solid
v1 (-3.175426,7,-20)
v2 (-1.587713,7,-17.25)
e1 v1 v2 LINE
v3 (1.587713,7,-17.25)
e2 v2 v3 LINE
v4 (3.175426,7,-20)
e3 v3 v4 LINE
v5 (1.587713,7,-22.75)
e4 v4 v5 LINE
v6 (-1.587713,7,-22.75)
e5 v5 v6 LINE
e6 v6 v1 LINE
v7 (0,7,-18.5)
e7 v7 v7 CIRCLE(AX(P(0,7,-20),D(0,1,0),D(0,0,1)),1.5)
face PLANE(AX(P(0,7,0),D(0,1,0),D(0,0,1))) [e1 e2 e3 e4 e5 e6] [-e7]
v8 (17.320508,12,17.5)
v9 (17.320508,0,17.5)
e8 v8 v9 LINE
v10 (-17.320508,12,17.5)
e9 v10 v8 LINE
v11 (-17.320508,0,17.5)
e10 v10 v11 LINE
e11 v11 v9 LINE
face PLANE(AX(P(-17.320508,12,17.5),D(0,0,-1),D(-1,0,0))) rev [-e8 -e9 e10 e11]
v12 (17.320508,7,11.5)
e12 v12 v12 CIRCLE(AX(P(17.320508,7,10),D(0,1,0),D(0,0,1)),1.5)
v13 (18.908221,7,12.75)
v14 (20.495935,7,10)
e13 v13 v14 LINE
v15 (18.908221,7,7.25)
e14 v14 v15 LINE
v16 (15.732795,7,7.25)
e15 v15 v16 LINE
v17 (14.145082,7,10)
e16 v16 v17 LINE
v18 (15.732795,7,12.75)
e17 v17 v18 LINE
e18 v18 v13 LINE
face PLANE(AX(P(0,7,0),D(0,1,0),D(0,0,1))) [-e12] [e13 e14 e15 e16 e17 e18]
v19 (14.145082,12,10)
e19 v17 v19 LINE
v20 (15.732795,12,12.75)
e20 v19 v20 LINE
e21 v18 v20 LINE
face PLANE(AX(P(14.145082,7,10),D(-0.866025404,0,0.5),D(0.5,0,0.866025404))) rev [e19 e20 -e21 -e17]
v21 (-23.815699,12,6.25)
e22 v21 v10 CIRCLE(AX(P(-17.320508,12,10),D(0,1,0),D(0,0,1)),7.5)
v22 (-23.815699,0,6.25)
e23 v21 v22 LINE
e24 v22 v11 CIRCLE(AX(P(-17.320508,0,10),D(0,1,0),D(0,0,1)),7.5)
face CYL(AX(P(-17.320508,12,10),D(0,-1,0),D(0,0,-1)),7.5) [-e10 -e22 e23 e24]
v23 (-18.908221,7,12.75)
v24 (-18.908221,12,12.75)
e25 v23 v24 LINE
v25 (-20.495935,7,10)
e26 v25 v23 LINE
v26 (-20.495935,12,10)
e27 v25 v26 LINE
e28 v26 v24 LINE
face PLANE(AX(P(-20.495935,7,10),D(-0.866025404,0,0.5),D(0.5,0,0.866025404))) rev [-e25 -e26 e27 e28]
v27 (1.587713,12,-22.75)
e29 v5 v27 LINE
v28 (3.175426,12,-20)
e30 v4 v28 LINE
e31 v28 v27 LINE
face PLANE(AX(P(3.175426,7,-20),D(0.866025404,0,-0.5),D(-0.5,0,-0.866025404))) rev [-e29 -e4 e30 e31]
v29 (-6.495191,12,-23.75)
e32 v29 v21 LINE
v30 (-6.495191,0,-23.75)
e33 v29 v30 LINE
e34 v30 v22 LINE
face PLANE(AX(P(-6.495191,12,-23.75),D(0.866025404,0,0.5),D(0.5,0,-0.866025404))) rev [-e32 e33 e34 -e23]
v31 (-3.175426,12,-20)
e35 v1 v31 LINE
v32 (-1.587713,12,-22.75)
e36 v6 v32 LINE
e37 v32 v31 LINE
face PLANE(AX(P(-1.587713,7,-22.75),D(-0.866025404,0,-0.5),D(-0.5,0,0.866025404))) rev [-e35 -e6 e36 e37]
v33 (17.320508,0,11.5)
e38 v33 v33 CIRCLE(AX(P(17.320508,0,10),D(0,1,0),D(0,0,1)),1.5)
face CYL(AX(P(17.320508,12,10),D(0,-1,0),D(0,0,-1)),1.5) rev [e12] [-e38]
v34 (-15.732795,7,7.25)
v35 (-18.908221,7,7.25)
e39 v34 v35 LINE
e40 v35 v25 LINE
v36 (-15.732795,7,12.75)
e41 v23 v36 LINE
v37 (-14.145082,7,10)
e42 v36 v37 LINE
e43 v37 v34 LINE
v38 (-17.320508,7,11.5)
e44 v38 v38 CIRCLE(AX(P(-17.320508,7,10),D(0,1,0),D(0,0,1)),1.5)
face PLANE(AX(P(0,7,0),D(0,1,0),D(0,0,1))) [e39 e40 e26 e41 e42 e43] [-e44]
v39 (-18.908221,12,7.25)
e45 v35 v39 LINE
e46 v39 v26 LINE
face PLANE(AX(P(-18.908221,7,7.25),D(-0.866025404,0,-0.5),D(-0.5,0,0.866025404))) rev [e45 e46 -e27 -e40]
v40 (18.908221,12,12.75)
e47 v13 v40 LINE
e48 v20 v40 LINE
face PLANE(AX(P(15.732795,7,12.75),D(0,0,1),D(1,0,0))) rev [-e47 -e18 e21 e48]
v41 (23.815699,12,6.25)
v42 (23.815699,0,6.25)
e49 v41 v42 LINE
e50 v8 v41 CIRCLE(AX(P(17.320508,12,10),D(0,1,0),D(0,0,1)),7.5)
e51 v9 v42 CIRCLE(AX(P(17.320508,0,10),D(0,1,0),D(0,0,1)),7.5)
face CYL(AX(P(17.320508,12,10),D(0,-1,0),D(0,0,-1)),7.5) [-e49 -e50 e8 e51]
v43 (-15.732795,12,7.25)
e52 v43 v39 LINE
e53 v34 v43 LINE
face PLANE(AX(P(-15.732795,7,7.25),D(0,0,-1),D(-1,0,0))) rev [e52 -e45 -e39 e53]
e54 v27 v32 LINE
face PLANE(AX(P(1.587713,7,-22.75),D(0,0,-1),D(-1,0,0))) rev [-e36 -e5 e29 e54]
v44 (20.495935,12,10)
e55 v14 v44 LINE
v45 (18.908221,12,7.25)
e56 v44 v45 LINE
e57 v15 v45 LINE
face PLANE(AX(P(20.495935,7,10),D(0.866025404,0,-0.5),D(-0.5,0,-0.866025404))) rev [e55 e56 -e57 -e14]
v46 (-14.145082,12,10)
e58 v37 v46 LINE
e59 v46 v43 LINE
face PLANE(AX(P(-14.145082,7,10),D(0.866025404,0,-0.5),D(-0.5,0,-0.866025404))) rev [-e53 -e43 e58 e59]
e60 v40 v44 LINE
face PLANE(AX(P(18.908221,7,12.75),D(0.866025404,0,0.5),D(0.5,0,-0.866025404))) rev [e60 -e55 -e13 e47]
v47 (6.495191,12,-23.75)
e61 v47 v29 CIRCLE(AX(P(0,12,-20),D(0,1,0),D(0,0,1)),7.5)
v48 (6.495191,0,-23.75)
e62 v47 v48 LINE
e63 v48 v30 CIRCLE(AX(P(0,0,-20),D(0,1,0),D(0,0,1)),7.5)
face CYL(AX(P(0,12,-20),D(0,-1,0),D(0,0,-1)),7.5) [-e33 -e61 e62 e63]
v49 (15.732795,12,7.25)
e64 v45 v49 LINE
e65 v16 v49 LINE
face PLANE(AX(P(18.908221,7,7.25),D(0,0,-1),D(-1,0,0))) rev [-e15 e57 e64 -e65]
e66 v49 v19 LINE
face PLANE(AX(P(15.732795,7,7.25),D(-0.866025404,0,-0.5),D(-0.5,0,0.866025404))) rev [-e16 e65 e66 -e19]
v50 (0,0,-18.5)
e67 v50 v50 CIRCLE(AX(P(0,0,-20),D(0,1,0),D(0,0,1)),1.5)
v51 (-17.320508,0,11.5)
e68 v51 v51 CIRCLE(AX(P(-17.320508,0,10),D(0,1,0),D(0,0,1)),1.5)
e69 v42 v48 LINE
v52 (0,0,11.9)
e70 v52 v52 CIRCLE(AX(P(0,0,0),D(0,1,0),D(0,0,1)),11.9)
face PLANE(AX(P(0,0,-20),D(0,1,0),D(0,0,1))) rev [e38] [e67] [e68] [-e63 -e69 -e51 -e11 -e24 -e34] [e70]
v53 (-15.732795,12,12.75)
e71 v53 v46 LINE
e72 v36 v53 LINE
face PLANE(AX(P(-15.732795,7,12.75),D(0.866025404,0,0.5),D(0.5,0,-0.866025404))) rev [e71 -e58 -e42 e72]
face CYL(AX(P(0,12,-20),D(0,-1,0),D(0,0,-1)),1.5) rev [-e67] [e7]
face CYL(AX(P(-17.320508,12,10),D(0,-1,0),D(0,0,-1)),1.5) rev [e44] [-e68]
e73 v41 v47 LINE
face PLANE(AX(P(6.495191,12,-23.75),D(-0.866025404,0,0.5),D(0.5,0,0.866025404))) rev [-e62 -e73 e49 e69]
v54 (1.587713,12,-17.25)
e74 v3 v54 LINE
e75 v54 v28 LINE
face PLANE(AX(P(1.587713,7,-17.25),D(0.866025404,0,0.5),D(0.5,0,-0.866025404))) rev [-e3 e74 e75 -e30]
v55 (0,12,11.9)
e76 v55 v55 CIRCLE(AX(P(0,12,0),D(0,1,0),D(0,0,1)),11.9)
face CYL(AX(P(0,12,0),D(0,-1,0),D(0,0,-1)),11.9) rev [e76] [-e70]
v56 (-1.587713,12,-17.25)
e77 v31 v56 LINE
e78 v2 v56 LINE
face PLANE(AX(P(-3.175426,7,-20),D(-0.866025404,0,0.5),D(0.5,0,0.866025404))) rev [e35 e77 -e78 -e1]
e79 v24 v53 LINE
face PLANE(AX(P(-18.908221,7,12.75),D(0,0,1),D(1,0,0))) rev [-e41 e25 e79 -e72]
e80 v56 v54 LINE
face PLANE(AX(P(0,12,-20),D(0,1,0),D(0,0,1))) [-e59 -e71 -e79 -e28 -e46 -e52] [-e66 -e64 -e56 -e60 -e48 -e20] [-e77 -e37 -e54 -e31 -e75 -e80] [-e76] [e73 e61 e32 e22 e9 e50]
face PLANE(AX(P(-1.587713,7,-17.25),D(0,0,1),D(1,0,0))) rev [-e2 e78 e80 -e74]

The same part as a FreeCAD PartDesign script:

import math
import FreeCAD as App
import Part
import Sketcher
Q = App.Units.Quantity


def add_polygon(sketch, points):
    """Adds a closed chain of lines whose ends are joined by coincident constraints."""
    first, n = sketch.GeometryCount, len(points)
    for a, b in zip(points, points[1:] + points[:1]):
        sketch.addGeometry(Part.LineSegment(App.Vector(*a, 0), App.Vector(*b, 0)), False)
    for i in range(n):
        sketch.addConstraint(Sketcher.Constraint("Coincident", first + i, 2, first + (i + 1) % n, 1))

doc = App.newDocument("Part")
body = doc.addObject("PartDesign::Body", "Body")

sketch1 = body.newObject("Sketcher::SketchObject", "Sketch")
sketch1.AttachmentSupport = (doc.getObject("XZ_Plane"), [""])
sketch1.MapMode = "FlatFace"
sketch1.addGeometry(Part.LineSegment(App.Vector(-6.5, -23.8, 0), App.Vector(-23.8, 6.2, 0)), False)
sketch1.addGeometry(Part.ArcOfCircle(Part.Circle(App.Vector(-17.3, 10, 0), App.Vector(0, 0, 1), 7.5), math.radians(90), math.radians(210)), False)
sketch1.addGeometry(Part.LineSegment(App.Vector(-17.3, 17.5, 0), App.Vector(17.3, 17.5, 0)), False)
sketch1.addGeometry(Part.ArcOfCircle(Part.Circle(App.Vector(17.3, 10, 0), App.Vector(0, 0, 1), 7.5), math.radians(-30), math.radians(90)), False)
sketch1.addGeometry(Part.LineSegment(App.Vector(23.8, 6.2, 0), App.Vector(6.5, -23.8, 0)), False)
sketch1.addGeometry(Part.ArcOfCircle(Part.Circle(App.Vector(0, -20, 0), App.Vector(0, 0, 1), 7.5), math.radians(-150), math.radians(-30)), False)
sketch1.addGeometry(Part.Circle(App.Vector(-17.3, 10, 0), App.Vector(0, 0, 1), 1.5), False)
sketch1.addGeometry(Part.Circle(App.Vector(17.3, 10, 0), App.Vector(0, 0, 1), 1.5), False)
sketch1.addGeometry(Part.Circle(App.Vector(0, 0, 0), App.Vector(0, 0, 1), 11.9), False)
sketch1.addGeometry(Part.Circle(App.Vector(0, -20, 0), App.Vector(0, 0, 1), 1.5), False)
sketch1.addConstraint(Sketcher.Constraint("Tangent", 0, 2, 1, 2))
sketch1.addConstraint(Sketcher.Constraint("Tangent", 1, 1, 2, 1))
sketch1.addConstraint(Sketcher.Constraint("Tangent", 2, 2, 3, 2))
sketch1.addConstraint(Sketcher.Constraint("Tangent", 3, 1, 4, 1))
sketch1.addConstraint(Sketcher.Constraint("Tangent", 4, 2, 5, 2))
sketch1.addConstraint(Sketcher.Constraint("Tangent", 5, 1, 0, 1))
sketch1.addConstraint(Sketcher.Constraint("Horizontal", 2))
sketch1.addConstraint(Sketcher.Constraint("Coincident", 8, 3, -1, 1))
sketch1.addConstraint(Sketcher.Constraint("Coincident", 6, 3, 1, 3))
sketch1.addConstraint(Sketcher.Constraint("Coincident", 7, 3, 3, 3))
sketch1.addConstraint(Sketcher.Constraint("Coincident", 9, 3, 5, 3))
sketch1.addConstraint(Sketcher.Constraint("Equal", 1, 3))
sketch1.addConstraint(Sketcher.Constraint("Equal", 3, 5))
sketch1.addConstraint(Sketcher.Constraint("Equal", 6, 7))
sketch1.addConstraint(Sketcher.Constraint("Equal", 7, 9))
sketch1.addConstraint(Sketcher.Constraint("Symmetric", 0, 2, 3, 1, -2))
sketch1.addConstraint(Sketcher.Constraint("Diameter", 6, Q("3 mm")))
sketch1.addConstraint(Sketcher.Constraint("Diameter", 8, Q("23.8 mm")))
sketch1.addConstraint(Sketcher.Constraint("Radius", 1, Q("7.5 mm")))
sketch1.addConstraint(Sketcher.Constraint("Angle", 0, Q("120 deg")))
sketch1.addConstraint(Sketcher.Constraint("DistanceY", -1, 1, 1, 3, Q("10 mm")))
sketch1.addConstraint(Sketcher.Constraint("DistanceY", 5, 3, -1, 1, Q("20 mm")))
pad1 = body.newObject("PartDesign::Pad", "Pad")
pad1.Profile = sketch1
pad1.Length = 12
pad1.Reversed = True

sketch2 = body.newObject("Sketcher::SketchObject", "Sketch001")
sketch2.AttachmentSupport = (doc.getObject("XZ_Plane"), [""])
sketch2.MapMode = "FlatFace"
sketch2.AttachmentOffset = App.Placement(App.Vector(0, 0, -12), App.Rotation())
add_polygon(sketch2, [(-18.9, 7.2), (-20.5, 10), (-18.9, 12.8), (-15.7, 12.8), (-14.1, 10), (-15.7, 7.2)])
add_polygon(sketch2, [(-1.6, -22.8), (-3.2, -20), (-1.6, -17.2), (1.6, -17.2), (3.2, -20), (1.6, -22.8)])
add_polygon(sketch2, [(18.9, 7.2), (15.7, 7.2), (14.1, 10), (15.7, 12.8), (18.9, 12.8), (20.5, 10)])
sketch2.addConstraint(Sketcher.Constraint("Horizontal", 2))
sketch2.addConstraint(Sketcher.Constraint("Horizontal", 5))
sketch2.addConstraint(Sketcher.Constraint("Horizontal", 8))
sketch2.addConstraint(Sketcher.Constraint("Horizontal", 11))
sketch2.addConstraint(Sketcher.Constraint("Horizontal", 12))
sketch2.addConstraint(Sketcher.Constraint("Horizontal", 15))
sketch2.addConstraint(Sketcher.Constraint("Symmetric", 6, 2, 9, 2, -2))
sketch2.addConstraint(Sketcher.Constraint("Symmetric", 4, 2, 12, 2, -2))
sketch2.addConstraint(Sketcher.Constraint("Symmetric", 3, 2, 13, 2, -2))
sketch2.addConstraint(Sketcher.Constraint("Symmetric", 2, 2, 14, 2, -2))
sketch2.addConstraint(Sketcher.Constraint("Symmetric", 0, 2, 16, 2, -2))
sketch2.addConstraint(Sketcher.Constraint("Parallel", 0, 3))
sketch2.addConstraint(Sketcher.Constraint("Parallel", 1, 4))
sketch2.addConstraint(Sketcher.Constraint("Parallel", 3, 6))
sketch2.addConstraint(Sketcher.Constraint("Parallel", 4, 7))
sketch2.addConstraint(Sketcher.Constraint("Parallel", 6, 9))
sketch2.addConstraint(Sketcher.Constraint("Parallel", 7, 10))
sketch2.addConstraint(Sketcher.Constraint("Parallel", 9, 13))
sketch2.addConstraint(Sketcher.Constraint("Parallel", 13, 16))
sketch2.addConstraint(Sketcher.Constraint("Parallel", 14, 17))
sketch2.addConstraint(Sketcher.Constraint("Horizontal", 0, 2, 3, 2))
sketch2.addConstraint(Sketcher.Constraint("Vertical", 2, 2, 4, 2))
sketch2.addConstraint(Sketcher.Constraint("Vertical", 8, 2, 10, 2))
sketch2.addConstraint(Sketcher.Constraint("Equal", 5, 8))
sketch2.addConstraint(Sketcher.Constraint("Equal", 4, 6))
sketch2.addConstraint(Sketcher.Constraint("Angle", 0, Q("120 deg")))
sketch2.addConstraint(Sketcher.Constraint("DistanceY", -1, 1, 0, 2, Q("10 mm")))
sketch2.addConstraint(Sketcher.Constraint("DistanceY", 6, 2, -1, 1, Q("20 mm")))
sketch2.addConstraint(Sketcher.Constraint("DistanceY", 4, 2, 2, 2, Q("5.5 mm")))
sketch2.addConstraint(Sketcher.Constraint("DistanceX", 2, 1, 2, 2, Q("3.175426 mm")))
sketch2.addConstraint(Sketcher.Constraint("DistanceX", 1, 2, -1, 1, Q("18.908221 mm")))
pocket1 = body.newObject("PartDesign::Pocket", "Pocket")
pocket1.Profile = sketch2
pocket1.Length = 5
pocket1.Reversed = True

doc.recompute()
